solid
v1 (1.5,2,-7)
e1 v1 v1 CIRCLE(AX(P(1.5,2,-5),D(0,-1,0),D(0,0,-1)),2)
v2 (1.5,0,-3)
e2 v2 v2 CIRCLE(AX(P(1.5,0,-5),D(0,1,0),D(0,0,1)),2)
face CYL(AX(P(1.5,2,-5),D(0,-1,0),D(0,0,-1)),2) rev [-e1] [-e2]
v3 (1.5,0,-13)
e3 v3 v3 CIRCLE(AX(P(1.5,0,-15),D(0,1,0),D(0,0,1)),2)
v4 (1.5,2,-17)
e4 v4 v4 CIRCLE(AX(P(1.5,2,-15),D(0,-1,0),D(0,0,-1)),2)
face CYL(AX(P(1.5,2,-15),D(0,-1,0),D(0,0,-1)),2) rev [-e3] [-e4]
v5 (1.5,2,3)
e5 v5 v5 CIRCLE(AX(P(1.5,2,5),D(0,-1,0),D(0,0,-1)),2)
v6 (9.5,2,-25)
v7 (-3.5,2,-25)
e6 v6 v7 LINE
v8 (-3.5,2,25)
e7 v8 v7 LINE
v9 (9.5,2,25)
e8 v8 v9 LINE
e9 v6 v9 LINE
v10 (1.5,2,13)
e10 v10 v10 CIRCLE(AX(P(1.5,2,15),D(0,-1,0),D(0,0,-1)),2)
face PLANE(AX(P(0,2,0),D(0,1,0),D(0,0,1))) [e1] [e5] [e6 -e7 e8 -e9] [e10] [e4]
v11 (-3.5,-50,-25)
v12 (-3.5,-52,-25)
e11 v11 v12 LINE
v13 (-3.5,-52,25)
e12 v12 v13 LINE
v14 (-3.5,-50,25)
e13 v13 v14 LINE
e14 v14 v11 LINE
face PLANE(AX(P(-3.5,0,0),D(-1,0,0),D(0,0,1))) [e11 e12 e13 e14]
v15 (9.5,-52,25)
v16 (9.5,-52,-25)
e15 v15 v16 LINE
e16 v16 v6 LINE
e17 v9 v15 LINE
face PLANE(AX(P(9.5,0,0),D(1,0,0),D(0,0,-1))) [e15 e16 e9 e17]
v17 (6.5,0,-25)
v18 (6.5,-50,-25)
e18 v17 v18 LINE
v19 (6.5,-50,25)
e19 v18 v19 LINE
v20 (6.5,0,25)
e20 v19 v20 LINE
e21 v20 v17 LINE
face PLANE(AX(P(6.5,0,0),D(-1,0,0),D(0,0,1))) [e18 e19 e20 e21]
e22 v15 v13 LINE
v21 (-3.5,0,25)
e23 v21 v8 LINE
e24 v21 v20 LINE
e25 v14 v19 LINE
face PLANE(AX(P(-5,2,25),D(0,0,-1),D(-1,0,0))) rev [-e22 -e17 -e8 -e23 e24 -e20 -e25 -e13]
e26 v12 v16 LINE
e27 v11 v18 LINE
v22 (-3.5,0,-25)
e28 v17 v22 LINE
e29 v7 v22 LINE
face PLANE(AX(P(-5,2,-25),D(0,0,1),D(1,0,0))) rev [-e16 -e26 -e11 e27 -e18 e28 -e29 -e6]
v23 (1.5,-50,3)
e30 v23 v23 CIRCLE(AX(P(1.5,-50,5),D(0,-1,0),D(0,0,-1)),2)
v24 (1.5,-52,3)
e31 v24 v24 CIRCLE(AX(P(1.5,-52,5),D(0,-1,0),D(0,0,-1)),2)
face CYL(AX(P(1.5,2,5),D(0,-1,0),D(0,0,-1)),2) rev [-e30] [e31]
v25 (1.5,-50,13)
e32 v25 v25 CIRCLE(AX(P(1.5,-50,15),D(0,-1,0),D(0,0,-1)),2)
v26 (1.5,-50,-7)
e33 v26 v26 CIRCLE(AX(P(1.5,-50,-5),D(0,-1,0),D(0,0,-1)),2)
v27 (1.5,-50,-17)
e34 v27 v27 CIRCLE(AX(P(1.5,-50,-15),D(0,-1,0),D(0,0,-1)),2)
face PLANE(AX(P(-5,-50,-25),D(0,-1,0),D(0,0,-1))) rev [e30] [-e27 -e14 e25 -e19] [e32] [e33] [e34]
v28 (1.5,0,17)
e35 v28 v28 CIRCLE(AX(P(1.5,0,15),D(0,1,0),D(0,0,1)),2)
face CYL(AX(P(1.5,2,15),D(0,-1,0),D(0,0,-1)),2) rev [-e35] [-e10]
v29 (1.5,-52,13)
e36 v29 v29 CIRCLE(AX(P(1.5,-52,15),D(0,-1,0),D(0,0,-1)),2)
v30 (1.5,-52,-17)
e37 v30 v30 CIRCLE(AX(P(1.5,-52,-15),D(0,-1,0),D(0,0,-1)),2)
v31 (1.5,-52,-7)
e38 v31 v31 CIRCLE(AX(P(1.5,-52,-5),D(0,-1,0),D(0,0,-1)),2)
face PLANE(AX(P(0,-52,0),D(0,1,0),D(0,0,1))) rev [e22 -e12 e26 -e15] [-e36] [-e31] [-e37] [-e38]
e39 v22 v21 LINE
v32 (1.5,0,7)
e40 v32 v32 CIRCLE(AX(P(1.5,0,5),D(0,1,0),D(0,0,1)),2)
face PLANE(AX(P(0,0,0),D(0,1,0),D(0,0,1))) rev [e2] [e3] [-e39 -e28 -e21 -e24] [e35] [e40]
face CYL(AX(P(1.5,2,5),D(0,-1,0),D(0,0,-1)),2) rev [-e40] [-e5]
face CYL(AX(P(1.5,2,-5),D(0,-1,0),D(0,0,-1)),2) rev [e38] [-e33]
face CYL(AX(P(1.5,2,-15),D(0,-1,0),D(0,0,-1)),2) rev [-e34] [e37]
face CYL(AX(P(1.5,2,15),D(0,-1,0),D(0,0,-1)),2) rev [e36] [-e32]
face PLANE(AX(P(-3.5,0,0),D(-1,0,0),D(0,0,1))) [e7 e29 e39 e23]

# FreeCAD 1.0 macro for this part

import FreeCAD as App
import Part
import Sketcher
from FreeCAD import Vector


def add_polygon(sketch, points):
    """Adds a closed chain of lines whose ends are joined by coincident constraints."""
    first, n = sketch.GeometryCount, len(points)
    for a, b in zip(points, points[1:] + points[:1]):
        sketch.addGeometry(Part.LineSegment(App.Vector(*a, 0), App.Vector(*b, 0)), False)
    for i in range(n):
        sketch.addConstraint(Sketcher.Constraint("Coincident", first + i, 2, first + (i + 1) % n, 1))

doc = App.newDocument("Part")
body = doc.addObject("PartDesign::Body", "Body")

sketch1 = body.newObject("Sketcher::SketchObject", "Sketch")
sketch1.AttachmentSupport = (doc.getObject("XZ_Plane"), [""])
sketch1.MapMode = "FlatFace"
add_polygon(sketch1, [(-5, -25), (-5, 25), (5, 25), (5, -25)])
sketch1.addConstraint([
    Sketcher.Constraint("Vertical", 0),
    Sketcher.Constraint("Horizontal", 1),
    Sketcher.Constraint("Vertical", 2),
    Sketcher.Constraint("Horizontal", 3),
    Sketcher.Constraint("Symmetric", 0, 2, 2, 2, -1, 1),
    Sketcher.Constraint("DistanceX", 1, 1, 1, 2, 10.0),
    Sketcher.Constraint("DistanceY", 0, 1, 0, 2, 50.0),
])
pad1 = body.newObject("PartDesign::Pad", "Pad")
pad1.Profile = sketch1
pad1.Length = 2
pad1.Reversed = True

sketch2 = body.newObject("Sketcher::SketchObject", "Sketch001")
sketch2.AttachmentSupport = (doc.getObject("YZ_Plane"), [""])
sketch2.MapMode = "FlatFace"
sketch2.AttachmentOffset = App.Placement(Vector(0, 0, 5), App.Rotation())
add_polygon(sketch2, [(2, 25), (0, 25), (0, -25), (2, -25)])
sketch2.addConstraint([
    Sketcher.Constraint("Horizontal", 0),
    Sketcher.Constraint("Vertical", 1),
    Sketcher.Constraint("Horizontal", 2),
    Sketcher.Constraint("Vertical", 3),
    Sketcher.Constraint("Symmetric", 0, 2, 1, 2, -1, 1),
    Sketcher.Constraint("DistanceX", 0, 2, 0, 1, 2.0),
    Sketcher.Constraint("DistanceY", 1, 2, 1, 1, 50.0),
])
pad2 = body.newObject("PartDesign::Pad", "Pad001")
pad2.Profile = sketch2
pad2.Length = 3

sketch3 = body.newObject("Sketcher::SketchObject", "Sketch002")
sketch3.AttachmentSupport = (doc.getObject("XZ_Plane"), [""])
sketch3.MapMode = "FlatFace"
add_polygon(sketch3, [(5, 25), (5, -25), (8, -25), (8, 25)])
sketch3.addConstraint([
    Sketcher.Constraint("Vertical", 0),
    Sketcher.Constraint("Horizontal", 1),
    Sketcher.Constraint("Vertical", 2),
    Sketcher.Constraint("Horizontal", 3),
    Sketcher.Constraint("DistanceX", 1, 1, 1, 2, 3.0),
    Sketcher.Constraint("DistanceY", 0, 2, 0, 1, 50.0),
    Sketcher.Constraint("DistanceX", -1, 1, 0, 2, 5.0),
    Sketcher.Constraint("DistanceY", 0, 2, -1, 1, 25.0),
])
pad3 = body.newObject("PartDesign::Pad", "Pad002")
pad3.Profile = sketch3
pad3.Length = 52

sketch4 = body.newObject("Sketcher::SketchObject", "Sketch003")
sketch4.AttachmentSupport = (doc.getObject("YZ_Plane"), [""])
sketch4.MapMode = "FlatFace"
sketch4.AttachmentOffset = App.Placement(Vector(0, 0, 5), App.Rotation())
add_polygon(sketch4, [(-50, -25), (-52, -25), (-52, 25), (-50, 25)])
sketch4.addConstraint([
    Sketcher.Constraint("Horizontal", 0),
    Sketcher.Constraint("Vertical", 1),
    Sketcher.Constraint("Horizontal", 2),
    Sketcher.Constraint("Vertical", 3),
    Sketcher.Constraint("DistanceX", 0, 2, 0, 1, 2.0),
    Sketcher.Constraint("DistanceY", 1, 1, 1, 2, 50.0),
    Sketcher.Constraint("DistanceX", 0, 2, -1, 1, 52.0),
    Sketcher.Constraint("DistanceY", 0, 2, -1, 1, 25.0),
])
pad4 = body.newObject("PartDesign::Pad", "Pad003")
pad4.Profile = sketch4
pad4.Length = 10
pad4.Reversed = True

sketch5 = body.newObject("Sketcher::SketchObject", "Sketch004")
sketch5.AttachmentSupport = (doc.getObject("XZ_Plane"), [""])
sketch5.MapMode = "FlatFace"
sketch5.AttachmentOffset = App.Placement(Vector(0, 0, 52), App.Rotation())
sketch5.addGeometry([
    Part.Circle(Vector(1.5, 15, 0), Vector(0, 0, 1), 2),
    Part.Circle(Vector(1.5, 5, 0), Vector(0, 0, 1), 2),
    Part.Circle(Vector(1.5, -5, 0), Vector(0, 0, 1), 2),
    Part.Circle(Vector(1.5, -15, 0), Vector(0, 0, 1), 2),
], False)
sketch5.addConstraint([
    Sketcher.Constraint("Equal", 0, 1),
    Sketcher.Constraint("Equal", 1, 2),
    Sketcher.Constraint("Equal", 2, 3),
    Sketcher.Constraint("Symmetric", 1, 3, 2, 3, -1),
    Sketcher.Constraint("Symmetric", 0, 3, 3, 3, -1),
    Sketcher.Constraint("Vertical", 0, 3, 1, 3),
    Sketcher.Constraint("Diameter", 0, 4.0),
    Sketcher.Constraint("DistanceY", -1, 1, 0, 3, 15.0),
    Sketcher.Constraint("DistanceY", -1, 1, 1, 3, 5.0),
    Sketcher.Constraint("DistanceX", -1, 1, 0, 3, 1.5),
])
pocket1 = body.newObject("PartDesign::Pocket", "Pocket")
pocket1.Profile = sketch5
pocket1.Type = "ThroughAll"

sketch6 = body.newObject("Sketcher::SketchObject", "Sketch005")
sketch6.AttachmentSupport = (doc.getObject("YZ_Plane"), [""])
sketch6.MapMode = "FlatFace"
sketch6.AttachmentOffset = App.Placement(Vector(0, 0, 8), App.Rotation())
add_polygon(sketch6, [(2, 25), (-52, 25), (-52, -25), (2, -25)])
sketch6.addConstraint([
    Sketcher.Constraint("Horizontal", 0),
    Sketcher.Constraint("Vertical", 1),
    Sketcher.Constraint("Horizontal", 2),
    Sketcher.Constraint("Vertical", 3),
    Sketcher.Constraint("DistanceX", 0, 2, 0, 1, 54.0),
    Sketcher.Constraint("DistanceY", 1, 2, 1, 1, 50.0),
    Sketcher.Constraint("DistanceX", 0, 2, -1, 1, 52.0),
    Sketcher.Constraint("DistanceY", -1, 1, 0, 2, 25.0),
])
pad5 = body.newObject("PartDesign::Pad", "Pad004")
pad5.Profile = sketch6
pad5.Length = 1.5

sketch7 = body.newObject("Sketcher::SketchObject", "Sketch006")
sketch7.AttachmentSupport = (doc.getObject("YZ_Plane"), [""])
sketch7.MapMode = "FlatFace"
sketch7.AttachmentOffset = App.Placement(Vector(0, 0, 5), App.Rotation())
add_polygon(sketch7, [(0, -25), (-50, -25), (-50, 25), (0, 25)])
sketch7.addConstraint([
    Sketcher.Constraint("Horizontal", 0),
    Sketcher.Constraint("Vertical", 1),
    Sketcher.Constraint("Horizontal", 2),
    Sketcher.Constraint("Vertical", 3),
    Sketcher.Constraint("Symmetric", 2, 2, 3, 2, -1, 1),
    Sketcher.Constraint("Equal", 2, 1),
    Sketcher.Constraint("DistanceX", 0, 2, 0, 1, 50.0),
])
pocket2 = body.newObject("PartDesign::Pocket", "Pocket001")
pocket2.Profile = sketch7
pocket2.Length = 1.5
pocket2.Reversed = True

sketch8 = body.newObject("Sketcher::SketchObject", "Sketch007")
sketch8.AttachmentSupport = (doc.getObject("YZ_Plane"), [""])
sketch8.MapMode = "FlatFace"
sketch8.AttachmentOffset = App.Placement(Vector(0, 0, -5), App.Rotation())
add_polygon(sketch8, [(-50, -25), (-52, -25), (-52, 25), (-50, 25)])
add_polygon(sketch8, [(2, -25), (0, -25), (0, 25), (2, 25)])
sketch8.addConstraint([
    Sketcher.Constraint("Horizontal", 0),
    Sketcher.Constraint("Vertical", 1),
    Sketcher.Constraint("Horizontal", 2),
    Sketcher.Constraint("Vertical", 3),
    Sketcher.Constraint("Horizontal", 4),
    Sketcher.Constraint("Vertical", 5),
    Sketcher.Constraint("Horizontal", 6),
    Sketcher.Constraint("Vertical", 7),
    Sketcher.Constraint("Symmetric", 4, 2, 5, 2, -1, 1),
    Sketcher.Constraint("Horizontal", 3, 2, 4, 2),
    Sketcher.Constraint("Horizontal", 2, 2, 5, 2),
    Sketcher.Constraint("Equal", 2, 4),
    Sketcher.Constraint("DistanceX", 0, 2, 0, 1, 2.0),
    Sketcher.Constraint("DistanceY", 1, 1, 1, 2, 50.0),
    Sketcher.Constraint("DistanceX", 0, 2, -1, 1, 52.0),
])
pocket3 = body.newObject("PartDesign::Pocket", "Pocket002")
pocket3.Profile = sketch8
pocket3.Length = 1.5
pocket3.Reversed = True

doc.recompute()
